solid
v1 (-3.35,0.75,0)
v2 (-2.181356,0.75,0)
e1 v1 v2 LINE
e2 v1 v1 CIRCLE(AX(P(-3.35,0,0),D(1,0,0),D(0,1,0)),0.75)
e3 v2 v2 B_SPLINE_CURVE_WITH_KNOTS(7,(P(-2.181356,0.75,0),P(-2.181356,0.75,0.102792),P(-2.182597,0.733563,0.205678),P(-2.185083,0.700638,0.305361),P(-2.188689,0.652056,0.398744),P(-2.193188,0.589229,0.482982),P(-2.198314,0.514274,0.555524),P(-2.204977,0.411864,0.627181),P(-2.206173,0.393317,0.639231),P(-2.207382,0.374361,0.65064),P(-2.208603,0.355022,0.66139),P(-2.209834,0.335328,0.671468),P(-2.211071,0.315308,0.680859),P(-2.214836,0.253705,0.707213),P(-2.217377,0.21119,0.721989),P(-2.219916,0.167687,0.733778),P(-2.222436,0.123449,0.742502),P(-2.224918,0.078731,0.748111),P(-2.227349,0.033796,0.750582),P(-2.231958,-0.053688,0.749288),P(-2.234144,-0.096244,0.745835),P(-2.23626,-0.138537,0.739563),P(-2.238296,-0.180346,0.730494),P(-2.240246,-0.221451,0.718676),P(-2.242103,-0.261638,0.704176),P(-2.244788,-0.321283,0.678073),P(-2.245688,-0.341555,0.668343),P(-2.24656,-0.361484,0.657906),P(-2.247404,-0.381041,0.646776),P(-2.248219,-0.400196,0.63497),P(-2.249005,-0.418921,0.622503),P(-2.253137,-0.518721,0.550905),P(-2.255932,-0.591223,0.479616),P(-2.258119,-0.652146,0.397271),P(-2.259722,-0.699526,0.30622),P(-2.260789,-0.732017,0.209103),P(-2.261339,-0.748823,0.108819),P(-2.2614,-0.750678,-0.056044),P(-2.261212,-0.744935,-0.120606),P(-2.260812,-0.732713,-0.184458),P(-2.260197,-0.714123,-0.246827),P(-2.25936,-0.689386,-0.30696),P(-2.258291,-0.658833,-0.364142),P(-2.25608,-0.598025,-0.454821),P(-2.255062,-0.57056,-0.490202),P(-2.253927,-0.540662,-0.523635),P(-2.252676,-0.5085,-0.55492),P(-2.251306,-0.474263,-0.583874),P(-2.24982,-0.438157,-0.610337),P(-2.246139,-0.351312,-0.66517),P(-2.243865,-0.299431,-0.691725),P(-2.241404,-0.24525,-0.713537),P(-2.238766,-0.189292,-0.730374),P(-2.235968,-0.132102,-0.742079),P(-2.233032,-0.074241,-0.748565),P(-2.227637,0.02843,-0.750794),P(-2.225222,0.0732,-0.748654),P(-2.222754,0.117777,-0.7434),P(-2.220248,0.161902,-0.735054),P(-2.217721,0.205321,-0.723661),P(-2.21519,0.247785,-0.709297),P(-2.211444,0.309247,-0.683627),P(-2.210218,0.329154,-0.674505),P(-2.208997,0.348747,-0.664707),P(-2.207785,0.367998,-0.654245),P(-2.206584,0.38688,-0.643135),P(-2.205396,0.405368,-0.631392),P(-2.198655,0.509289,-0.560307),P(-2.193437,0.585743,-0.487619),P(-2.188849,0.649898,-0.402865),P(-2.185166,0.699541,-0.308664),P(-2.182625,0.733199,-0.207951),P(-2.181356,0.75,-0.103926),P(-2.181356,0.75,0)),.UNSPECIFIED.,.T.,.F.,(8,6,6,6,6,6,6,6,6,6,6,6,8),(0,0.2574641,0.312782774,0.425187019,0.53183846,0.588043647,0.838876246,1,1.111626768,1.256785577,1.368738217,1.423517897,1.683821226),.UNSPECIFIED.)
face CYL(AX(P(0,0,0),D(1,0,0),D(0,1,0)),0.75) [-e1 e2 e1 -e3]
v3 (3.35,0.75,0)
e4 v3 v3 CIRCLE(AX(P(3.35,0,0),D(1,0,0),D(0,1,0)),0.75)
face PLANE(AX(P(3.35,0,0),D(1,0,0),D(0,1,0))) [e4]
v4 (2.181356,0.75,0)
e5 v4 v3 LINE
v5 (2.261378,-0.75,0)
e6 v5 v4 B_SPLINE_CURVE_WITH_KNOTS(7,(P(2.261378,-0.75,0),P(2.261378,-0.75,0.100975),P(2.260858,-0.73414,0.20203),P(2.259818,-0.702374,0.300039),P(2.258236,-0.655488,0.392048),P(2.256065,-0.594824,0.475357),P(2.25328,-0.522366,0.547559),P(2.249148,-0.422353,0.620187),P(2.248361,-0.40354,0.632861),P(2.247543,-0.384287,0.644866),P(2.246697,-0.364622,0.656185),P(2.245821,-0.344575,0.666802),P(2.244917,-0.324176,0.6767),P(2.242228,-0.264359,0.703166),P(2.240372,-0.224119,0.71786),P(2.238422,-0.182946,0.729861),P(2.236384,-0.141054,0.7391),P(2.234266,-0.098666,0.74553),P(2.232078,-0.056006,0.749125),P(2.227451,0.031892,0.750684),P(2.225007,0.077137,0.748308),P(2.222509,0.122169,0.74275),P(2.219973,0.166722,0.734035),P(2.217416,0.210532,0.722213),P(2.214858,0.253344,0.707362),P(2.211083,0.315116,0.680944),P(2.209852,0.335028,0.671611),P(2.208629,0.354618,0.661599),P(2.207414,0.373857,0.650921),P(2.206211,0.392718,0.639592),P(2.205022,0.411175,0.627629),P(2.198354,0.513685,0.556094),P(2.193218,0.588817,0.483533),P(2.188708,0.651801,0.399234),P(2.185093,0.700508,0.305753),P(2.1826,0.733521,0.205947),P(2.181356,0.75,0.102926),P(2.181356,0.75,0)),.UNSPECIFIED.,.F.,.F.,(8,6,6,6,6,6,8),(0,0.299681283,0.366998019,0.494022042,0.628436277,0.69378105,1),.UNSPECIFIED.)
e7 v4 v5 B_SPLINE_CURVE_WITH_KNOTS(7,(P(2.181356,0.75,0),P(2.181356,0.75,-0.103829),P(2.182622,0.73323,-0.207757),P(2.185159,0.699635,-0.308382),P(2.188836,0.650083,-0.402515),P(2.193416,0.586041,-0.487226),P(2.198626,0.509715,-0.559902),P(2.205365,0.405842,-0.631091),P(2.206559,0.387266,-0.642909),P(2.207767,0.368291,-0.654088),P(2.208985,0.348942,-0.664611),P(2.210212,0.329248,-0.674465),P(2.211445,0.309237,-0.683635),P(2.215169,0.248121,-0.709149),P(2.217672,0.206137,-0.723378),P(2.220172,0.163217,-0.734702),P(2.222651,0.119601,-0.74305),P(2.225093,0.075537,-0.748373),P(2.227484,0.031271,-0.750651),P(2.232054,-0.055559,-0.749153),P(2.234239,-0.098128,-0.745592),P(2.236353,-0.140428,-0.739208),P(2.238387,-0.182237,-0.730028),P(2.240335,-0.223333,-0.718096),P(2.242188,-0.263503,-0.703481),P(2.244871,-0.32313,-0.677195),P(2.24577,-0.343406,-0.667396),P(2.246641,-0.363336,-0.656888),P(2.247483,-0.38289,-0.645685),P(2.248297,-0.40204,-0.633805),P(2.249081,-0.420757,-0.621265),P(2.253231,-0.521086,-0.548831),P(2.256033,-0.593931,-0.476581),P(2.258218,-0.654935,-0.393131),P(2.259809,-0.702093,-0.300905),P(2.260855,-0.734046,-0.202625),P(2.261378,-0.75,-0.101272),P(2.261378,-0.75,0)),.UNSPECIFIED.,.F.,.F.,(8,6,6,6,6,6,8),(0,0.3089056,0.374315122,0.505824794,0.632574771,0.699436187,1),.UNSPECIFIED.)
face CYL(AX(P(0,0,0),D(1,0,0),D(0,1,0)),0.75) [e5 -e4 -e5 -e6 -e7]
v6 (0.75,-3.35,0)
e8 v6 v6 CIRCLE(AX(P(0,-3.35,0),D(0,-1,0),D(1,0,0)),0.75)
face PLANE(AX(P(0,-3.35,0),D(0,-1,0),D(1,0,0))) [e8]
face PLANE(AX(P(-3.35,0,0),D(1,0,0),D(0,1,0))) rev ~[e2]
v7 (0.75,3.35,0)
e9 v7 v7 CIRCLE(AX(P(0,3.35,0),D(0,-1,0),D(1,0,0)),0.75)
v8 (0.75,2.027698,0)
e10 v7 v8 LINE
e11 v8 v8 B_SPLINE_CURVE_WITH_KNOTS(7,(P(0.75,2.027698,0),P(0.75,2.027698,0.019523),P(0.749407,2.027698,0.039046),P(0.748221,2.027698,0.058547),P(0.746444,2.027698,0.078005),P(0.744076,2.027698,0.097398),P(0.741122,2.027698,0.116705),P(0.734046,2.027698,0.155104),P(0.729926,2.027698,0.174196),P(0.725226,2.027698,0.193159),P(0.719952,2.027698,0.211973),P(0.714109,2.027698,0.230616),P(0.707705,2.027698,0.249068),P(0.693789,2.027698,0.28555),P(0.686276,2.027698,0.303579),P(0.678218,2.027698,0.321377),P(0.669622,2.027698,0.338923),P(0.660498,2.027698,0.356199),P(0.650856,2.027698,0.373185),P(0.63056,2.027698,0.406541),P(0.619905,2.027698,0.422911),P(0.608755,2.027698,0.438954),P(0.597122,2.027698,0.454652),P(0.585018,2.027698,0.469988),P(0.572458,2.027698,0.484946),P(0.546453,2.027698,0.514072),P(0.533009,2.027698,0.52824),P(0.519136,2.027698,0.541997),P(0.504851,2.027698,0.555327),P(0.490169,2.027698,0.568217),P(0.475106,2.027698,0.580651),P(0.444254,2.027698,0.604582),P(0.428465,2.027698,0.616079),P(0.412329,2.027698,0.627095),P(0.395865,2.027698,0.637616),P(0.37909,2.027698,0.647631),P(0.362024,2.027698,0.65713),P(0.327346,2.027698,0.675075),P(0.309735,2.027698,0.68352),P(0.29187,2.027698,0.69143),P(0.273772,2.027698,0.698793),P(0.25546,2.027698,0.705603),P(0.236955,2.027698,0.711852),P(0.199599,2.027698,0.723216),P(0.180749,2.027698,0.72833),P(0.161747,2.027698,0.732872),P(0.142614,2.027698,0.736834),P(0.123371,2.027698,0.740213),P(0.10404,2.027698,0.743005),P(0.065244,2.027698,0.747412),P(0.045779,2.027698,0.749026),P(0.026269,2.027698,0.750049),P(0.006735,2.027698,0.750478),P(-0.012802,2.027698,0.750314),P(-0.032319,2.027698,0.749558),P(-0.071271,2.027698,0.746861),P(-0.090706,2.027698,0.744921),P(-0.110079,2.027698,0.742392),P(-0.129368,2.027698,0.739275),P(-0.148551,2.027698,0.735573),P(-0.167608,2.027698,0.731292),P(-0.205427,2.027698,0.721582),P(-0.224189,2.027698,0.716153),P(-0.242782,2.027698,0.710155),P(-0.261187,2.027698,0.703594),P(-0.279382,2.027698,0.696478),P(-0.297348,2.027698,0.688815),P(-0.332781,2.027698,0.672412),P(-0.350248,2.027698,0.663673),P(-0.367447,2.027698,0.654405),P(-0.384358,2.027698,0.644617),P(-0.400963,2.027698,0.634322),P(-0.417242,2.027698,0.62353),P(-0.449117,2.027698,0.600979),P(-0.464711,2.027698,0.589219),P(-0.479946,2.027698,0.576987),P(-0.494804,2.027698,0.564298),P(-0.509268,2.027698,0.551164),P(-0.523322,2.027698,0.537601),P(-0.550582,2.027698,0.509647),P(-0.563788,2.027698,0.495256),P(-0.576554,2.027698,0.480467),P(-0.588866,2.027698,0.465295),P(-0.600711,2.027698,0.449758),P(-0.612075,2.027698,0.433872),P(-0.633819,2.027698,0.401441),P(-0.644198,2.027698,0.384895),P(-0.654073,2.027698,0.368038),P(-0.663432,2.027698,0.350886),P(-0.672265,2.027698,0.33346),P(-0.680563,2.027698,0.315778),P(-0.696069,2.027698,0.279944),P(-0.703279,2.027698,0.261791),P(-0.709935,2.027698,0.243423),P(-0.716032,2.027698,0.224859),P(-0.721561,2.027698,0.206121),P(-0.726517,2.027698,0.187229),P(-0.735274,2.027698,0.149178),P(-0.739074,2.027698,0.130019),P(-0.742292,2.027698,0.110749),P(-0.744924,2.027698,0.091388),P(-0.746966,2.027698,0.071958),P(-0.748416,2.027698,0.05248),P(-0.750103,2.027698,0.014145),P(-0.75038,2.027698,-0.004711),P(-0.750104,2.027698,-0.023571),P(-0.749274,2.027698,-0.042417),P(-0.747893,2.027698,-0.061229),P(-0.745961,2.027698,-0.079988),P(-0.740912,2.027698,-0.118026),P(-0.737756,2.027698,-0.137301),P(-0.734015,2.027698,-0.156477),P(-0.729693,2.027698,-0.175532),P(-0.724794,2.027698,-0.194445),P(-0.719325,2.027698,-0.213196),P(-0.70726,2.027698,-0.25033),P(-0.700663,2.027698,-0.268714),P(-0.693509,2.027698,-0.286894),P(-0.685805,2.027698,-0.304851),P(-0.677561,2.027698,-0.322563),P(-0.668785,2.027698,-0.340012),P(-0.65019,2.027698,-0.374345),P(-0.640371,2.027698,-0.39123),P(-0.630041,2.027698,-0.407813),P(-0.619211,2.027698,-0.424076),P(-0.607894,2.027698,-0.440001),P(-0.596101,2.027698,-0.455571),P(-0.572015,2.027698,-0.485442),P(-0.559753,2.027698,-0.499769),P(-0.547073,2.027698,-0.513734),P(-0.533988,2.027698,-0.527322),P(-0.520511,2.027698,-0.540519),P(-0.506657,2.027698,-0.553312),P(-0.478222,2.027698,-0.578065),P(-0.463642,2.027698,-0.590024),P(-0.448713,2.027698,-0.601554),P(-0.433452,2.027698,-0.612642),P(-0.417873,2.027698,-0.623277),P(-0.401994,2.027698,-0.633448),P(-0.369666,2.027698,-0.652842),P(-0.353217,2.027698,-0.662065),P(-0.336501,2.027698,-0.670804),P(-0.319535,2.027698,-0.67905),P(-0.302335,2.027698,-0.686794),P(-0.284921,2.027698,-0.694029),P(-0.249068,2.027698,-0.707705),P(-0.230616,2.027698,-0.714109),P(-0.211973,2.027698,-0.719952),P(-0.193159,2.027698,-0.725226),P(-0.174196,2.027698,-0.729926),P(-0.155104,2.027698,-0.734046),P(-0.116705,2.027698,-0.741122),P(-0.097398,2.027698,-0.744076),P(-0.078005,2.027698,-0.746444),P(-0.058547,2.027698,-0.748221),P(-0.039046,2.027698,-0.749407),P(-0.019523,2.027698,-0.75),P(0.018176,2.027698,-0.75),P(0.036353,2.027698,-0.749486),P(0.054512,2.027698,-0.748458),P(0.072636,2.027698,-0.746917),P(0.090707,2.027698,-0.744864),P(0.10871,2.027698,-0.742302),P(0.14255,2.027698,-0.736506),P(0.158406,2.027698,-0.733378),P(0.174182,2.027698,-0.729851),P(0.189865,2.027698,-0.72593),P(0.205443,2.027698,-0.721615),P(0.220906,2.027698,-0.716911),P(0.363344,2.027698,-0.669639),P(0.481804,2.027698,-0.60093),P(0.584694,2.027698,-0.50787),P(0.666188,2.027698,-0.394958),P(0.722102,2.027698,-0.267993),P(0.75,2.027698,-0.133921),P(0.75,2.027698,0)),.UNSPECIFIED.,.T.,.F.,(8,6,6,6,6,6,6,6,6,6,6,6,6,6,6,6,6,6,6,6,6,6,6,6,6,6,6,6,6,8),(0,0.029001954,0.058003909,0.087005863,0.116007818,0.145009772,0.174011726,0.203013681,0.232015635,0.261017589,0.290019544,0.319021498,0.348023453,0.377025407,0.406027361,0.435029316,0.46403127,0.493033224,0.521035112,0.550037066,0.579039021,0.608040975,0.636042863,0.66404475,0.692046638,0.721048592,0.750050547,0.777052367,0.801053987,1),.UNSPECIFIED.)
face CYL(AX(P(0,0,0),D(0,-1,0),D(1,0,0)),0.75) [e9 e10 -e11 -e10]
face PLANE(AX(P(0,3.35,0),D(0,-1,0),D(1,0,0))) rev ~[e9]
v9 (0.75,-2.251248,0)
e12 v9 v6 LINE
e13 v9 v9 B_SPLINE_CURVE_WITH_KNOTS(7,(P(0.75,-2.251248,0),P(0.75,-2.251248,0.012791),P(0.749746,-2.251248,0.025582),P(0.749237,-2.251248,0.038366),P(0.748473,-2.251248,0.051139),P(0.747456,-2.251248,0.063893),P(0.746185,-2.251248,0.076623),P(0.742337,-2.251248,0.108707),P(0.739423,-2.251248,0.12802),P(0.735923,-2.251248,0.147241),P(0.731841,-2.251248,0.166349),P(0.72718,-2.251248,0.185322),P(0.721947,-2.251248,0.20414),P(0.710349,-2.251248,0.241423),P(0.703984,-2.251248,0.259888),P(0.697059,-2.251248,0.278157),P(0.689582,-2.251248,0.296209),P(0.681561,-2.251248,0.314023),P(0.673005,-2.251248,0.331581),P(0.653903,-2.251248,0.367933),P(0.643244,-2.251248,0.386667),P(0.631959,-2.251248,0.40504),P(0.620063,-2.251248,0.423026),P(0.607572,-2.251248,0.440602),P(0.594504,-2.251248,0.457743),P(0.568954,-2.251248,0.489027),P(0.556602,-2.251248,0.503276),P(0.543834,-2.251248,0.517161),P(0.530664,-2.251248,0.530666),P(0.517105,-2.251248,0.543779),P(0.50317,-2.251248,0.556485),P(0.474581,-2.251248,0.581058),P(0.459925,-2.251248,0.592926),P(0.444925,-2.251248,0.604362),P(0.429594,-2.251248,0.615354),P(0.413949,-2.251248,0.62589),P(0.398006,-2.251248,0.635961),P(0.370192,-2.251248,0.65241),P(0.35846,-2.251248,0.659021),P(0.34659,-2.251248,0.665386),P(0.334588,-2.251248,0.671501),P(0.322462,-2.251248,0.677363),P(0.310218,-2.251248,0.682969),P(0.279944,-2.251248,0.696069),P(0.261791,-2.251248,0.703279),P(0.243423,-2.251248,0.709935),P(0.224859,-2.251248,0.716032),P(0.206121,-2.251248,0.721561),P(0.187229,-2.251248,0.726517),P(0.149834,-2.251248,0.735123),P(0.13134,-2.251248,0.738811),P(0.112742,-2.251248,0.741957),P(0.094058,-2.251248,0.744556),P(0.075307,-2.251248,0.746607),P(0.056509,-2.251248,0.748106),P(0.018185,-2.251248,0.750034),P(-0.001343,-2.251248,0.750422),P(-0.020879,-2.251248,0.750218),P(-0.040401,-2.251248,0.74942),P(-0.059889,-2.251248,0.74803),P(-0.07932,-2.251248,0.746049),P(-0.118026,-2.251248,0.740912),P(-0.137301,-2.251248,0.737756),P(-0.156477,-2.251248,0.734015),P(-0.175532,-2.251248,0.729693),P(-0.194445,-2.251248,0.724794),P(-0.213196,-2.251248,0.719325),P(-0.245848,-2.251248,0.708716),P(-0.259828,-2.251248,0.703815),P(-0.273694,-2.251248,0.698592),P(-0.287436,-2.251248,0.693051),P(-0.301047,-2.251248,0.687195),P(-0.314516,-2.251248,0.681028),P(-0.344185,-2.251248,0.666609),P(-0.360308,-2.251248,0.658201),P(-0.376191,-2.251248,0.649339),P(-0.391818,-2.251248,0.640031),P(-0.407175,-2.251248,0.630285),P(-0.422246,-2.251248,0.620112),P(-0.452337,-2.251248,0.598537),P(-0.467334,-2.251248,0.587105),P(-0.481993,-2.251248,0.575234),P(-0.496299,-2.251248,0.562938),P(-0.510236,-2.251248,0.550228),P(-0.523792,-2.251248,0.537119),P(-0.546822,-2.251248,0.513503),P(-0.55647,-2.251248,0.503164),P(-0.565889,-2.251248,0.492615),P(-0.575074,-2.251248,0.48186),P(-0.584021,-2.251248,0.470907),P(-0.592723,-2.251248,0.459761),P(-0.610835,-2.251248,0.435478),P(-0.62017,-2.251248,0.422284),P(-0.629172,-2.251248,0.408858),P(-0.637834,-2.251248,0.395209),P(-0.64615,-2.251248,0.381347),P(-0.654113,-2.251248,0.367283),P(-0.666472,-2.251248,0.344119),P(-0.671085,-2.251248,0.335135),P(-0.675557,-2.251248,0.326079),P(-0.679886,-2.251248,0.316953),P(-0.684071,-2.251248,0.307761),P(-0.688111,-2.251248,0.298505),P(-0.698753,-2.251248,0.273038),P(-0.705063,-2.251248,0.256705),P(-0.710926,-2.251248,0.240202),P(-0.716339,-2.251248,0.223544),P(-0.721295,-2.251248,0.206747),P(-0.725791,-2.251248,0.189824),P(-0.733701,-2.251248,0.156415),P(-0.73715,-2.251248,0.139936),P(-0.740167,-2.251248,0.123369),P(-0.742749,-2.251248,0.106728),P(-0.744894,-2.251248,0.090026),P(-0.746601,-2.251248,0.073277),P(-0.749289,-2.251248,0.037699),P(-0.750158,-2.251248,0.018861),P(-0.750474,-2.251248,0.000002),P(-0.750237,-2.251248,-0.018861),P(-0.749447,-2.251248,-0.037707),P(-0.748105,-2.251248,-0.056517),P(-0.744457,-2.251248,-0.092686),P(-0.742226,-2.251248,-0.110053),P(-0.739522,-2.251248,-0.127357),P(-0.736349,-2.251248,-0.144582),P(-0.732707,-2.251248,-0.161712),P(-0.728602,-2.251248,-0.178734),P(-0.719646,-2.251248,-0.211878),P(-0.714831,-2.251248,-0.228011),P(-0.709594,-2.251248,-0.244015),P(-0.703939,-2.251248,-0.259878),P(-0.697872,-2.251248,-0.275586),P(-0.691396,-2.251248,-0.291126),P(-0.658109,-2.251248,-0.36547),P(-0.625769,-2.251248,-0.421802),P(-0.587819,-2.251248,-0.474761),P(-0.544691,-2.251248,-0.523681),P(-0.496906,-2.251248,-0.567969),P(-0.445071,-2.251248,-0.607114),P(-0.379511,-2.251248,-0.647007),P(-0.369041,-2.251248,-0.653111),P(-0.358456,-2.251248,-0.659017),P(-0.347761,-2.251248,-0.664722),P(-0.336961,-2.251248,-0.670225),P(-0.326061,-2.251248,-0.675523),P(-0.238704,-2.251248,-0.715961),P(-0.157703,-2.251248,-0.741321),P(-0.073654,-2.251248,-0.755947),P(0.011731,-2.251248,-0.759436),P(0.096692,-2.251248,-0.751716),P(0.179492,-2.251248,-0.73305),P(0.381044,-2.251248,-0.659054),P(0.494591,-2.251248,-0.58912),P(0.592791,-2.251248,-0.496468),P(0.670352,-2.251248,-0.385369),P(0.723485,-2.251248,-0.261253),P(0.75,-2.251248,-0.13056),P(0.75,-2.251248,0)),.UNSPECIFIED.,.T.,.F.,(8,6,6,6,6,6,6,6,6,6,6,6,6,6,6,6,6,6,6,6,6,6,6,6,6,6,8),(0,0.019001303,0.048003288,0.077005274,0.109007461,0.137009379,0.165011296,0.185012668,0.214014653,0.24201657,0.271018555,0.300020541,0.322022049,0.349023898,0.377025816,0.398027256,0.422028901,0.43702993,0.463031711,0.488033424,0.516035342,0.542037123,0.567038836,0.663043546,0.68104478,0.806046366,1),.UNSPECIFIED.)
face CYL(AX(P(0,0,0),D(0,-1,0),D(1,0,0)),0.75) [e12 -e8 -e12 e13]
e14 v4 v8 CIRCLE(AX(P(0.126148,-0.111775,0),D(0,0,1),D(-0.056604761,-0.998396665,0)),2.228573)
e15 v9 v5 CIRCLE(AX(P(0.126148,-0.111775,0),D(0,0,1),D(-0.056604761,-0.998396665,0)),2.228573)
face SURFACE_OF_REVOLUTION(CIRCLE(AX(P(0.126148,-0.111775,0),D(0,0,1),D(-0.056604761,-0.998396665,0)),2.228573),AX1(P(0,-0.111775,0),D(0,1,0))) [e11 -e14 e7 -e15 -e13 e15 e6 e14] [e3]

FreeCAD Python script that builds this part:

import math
import FreeCAD as App
import Part
import Sketcher

V = App.Vector
Q = App.Units.Quantity

doc = App.newDocument("Part")
body = doc.addObject("PartDesign::Body", "Body")

sketch1 = body.newObject("Sketcher::SketchObject", "Sketch")
sketch1.AttachmentSupport = (doc.getObject("XZ_Plane"), [""])
sketch1.MapMode = "FlatFace"
sketch1.addGeometry(Part.Circle(V(0, 0, 0), V(0, 0, 1), 0.8), False)
sketch1.addConstraint([
    Sketcher.Constraint("Coincident", 0, 3, -1, 1),
    Sketcher.Constraint("Diameter", 0, Q("1.5 mm")),
])
pad1 = body.newObject("PartDesign::Pad", "Pad")
pad1.Profile = sketch1
pad1.Length = 6.7
pad1.Midplane = True

sketch2 = body.newObject("Sketcher::SketchObject", "Sketch001")
sketch2.AttachmentSupport = (doc.getObject("YZ_Plane"), [""])
sketch2.MapMode = "FlatFace"
sketch2.addGeometry(Part.Circle(V(0, 0, 0), V(0, 0, 1), 0.8), False)
sketch2.addConstraint([
    Sketcher.Constraint("Coincident", 0, 3, -1, 1),
    Sketcher.Constraint("Diameter", 0, Q("1.5 mm")),
])
pad2 = body.newObject("PartDesign::Pad", "Pad001")
pad2.Profile = sketch2
pad2.Length = 6.7
pad2.Midplane = True

sketch3 = body.newObject("Sketcher::SketchObject", "Sketch002")
sketch3.AttachmentSupport = (doc.getObject("XY_Plane"), [""])
sketch3.MapMode = "FlatFace"
sketch3.addGeometry([
    Part.LineSegment(V(0, 2.1, 0), V(0, -2.3, 0)),
    Part.ArcOfCircle(Part.Circle(V(0.1, -0.1, 0), V(0, 0, 1), 2.2), math.radians(-93), math.radians(93)),
], False)
sketch3.addConstraint([
    Sketcher.Constraint("Coincident", 0, 1, 1, 2),
    Sketcher.Constraint("Coincident", 1, 1, 0, 2),
    Sketcher.Constraint("Vertical", 0),
    Sketcher.Constraint("PointOnObject", 0, 1, -2),
    Sketcher.Constraint("DistanceY", 0, 2, 0, 1, Q("4.45 mm")),
    Sketcher.Constraint("Radius", 1, Q("2.228573 mm")),
    Sketcher.Constraint("DistanceY", 1, 3, -1, 1, Q("0.111775 mm")),
])
revolution = body.newObject("PartDesign::Revolution", "Revolution")
revolution.Profile = sketch3
revolution.ReferenceAxis = (sketch3, ["V_Axis"])
revolution.Angle = 360

doc.recompute()
